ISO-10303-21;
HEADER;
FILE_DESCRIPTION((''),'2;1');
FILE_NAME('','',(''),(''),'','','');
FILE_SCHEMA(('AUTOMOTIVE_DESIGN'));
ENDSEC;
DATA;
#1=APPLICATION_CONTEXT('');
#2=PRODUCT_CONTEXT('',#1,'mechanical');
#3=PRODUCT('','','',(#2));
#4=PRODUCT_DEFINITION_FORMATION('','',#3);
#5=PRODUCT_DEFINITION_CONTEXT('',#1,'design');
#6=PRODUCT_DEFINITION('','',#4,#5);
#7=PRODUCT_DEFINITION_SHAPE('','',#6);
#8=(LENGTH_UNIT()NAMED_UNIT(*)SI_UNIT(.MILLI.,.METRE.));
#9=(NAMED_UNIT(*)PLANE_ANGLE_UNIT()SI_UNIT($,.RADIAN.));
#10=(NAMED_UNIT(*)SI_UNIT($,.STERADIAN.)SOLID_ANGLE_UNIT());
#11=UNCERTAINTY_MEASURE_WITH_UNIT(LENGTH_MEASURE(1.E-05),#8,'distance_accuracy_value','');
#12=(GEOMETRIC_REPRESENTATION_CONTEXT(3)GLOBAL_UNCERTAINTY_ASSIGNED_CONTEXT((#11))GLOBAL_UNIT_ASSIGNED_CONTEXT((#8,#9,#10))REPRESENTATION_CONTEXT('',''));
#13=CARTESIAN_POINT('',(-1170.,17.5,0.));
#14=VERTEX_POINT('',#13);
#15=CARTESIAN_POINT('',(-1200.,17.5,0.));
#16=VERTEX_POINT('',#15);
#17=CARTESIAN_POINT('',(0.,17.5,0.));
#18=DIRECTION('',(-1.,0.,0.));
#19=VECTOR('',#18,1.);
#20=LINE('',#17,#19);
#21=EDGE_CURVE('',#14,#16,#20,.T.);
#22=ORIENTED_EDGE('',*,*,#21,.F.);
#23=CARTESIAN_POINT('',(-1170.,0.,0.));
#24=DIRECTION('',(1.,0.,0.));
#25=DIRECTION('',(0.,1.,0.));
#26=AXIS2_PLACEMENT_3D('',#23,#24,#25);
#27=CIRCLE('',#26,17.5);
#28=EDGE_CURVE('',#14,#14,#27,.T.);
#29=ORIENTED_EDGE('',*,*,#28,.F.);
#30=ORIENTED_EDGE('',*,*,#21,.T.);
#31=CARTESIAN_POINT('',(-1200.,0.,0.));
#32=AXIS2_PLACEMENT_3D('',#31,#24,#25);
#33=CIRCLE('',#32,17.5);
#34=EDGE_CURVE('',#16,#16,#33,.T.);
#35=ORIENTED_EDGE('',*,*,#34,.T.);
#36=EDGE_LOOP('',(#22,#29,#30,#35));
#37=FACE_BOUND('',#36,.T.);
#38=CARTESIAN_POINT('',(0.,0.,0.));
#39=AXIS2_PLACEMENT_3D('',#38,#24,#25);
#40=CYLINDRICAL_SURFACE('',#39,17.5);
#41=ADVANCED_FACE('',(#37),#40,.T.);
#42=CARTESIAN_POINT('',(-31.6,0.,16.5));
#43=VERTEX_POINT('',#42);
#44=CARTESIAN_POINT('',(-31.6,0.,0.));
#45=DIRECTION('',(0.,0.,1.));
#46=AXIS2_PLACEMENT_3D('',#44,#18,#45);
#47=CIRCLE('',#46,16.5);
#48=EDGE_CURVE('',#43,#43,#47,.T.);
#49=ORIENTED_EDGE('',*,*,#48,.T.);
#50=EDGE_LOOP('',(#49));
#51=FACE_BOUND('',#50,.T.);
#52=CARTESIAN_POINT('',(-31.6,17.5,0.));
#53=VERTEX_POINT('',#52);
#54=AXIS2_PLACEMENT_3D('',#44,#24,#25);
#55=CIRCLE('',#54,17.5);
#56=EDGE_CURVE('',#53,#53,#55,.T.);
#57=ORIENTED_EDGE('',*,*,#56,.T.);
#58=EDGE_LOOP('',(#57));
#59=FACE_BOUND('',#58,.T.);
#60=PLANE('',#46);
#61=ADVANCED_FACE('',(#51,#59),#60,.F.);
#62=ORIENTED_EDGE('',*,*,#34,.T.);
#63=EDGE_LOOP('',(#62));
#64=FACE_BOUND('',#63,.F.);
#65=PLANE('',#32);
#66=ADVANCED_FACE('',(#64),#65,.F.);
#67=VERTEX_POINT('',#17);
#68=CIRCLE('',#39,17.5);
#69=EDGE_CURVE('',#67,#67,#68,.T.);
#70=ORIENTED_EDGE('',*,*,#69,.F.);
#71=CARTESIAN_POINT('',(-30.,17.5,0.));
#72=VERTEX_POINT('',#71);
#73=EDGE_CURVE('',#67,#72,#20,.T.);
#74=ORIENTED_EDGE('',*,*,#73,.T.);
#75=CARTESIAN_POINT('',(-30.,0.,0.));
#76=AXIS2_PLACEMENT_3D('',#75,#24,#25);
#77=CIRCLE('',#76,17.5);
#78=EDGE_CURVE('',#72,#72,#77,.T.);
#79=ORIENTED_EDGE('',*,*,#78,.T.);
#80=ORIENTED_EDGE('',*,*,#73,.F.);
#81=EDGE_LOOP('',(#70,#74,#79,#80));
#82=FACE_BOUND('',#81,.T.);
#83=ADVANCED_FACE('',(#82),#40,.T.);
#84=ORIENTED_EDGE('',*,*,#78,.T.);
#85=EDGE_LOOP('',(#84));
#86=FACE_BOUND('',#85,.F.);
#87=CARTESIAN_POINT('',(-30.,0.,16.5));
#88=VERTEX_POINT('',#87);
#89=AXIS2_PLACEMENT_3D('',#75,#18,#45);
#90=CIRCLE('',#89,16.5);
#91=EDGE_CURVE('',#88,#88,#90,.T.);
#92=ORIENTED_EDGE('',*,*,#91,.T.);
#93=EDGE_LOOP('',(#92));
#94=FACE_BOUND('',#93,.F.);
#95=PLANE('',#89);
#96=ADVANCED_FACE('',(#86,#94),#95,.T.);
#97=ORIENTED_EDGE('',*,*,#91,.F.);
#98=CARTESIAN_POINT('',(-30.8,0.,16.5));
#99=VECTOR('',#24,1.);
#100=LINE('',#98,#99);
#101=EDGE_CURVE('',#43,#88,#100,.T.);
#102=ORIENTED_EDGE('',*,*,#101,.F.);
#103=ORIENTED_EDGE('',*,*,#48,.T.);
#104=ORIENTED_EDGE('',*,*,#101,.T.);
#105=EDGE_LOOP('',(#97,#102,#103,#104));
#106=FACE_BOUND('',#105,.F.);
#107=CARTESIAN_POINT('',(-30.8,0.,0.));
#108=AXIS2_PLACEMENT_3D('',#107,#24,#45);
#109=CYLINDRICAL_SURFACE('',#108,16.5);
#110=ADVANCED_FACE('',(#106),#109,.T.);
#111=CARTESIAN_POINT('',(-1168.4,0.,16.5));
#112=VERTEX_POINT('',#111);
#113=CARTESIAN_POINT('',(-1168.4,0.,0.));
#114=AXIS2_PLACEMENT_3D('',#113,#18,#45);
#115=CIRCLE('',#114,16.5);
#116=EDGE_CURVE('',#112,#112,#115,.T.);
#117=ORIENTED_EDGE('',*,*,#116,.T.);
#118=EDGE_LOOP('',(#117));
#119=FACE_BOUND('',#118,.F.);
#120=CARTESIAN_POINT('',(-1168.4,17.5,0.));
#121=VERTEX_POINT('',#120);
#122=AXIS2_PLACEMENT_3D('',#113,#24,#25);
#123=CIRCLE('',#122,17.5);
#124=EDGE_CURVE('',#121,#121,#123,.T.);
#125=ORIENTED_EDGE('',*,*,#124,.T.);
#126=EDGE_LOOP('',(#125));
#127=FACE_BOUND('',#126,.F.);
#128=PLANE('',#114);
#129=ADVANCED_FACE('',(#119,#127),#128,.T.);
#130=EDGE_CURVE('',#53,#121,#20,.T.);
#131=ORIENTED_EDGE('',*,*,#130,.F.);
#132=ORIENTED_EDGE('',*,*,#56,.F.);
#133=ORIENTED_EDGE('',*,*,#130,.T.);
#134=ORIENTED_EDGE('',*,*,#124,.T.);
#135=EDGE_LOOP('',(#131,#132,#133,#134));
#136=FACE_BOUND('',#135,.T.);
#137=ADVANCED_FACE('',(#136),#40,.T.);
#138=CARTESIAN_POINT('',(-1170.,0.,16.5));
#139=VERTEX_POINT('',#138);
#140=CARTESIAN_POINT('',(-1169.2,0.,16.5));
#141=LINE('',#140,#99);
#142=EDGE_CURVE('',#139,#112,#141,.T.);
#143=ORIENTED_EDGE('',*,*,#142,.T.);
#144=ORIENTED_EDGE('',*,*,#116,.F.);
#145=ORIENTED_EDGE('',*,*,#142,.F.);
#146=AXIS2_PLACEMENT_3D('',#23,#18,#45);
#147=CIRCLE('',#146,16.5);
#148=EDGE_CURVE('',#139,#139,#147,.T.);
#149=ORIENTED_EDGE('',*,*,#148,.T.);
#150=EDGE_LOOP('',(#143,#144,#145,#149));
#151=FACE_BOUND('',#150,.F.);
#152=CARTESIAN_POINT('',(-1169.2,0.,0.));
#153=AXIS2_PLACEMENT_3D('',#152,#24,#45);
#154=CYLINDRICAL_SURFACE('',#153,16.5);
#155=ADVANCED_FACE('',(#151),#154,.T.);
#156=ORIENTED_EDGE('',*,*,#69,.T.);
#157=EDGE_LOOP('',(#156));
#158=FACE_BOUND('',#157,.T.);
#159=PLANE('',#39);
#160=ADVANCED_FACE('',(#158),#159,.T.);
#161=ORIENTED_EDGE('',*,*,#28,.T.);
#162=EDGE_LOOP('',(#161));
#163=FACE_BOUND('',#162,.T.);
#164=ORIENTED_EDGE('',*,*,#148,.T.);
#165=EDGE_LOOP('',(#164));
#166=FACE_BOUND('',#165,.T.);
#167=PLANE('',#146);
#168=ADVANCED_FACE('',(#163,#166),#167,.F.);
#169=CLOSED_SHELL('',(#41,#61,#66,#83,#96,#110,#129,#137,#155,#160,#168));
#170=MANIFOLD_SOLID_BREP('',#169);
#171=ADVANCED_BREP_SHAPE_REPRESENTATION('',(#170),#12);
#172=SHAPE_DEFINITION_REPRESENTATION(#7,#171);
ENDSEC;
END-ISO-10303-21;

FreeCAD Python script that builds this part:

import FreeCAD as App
import Part
import Sketcher
from FreeCAD import Vector
Q = App.Units.Quantity


def add_polygon(sketch, points):
    """Adds a closed chain of lines whose ends are joined by coincident constraints."""
    first, n = sketch.GeometryCount, len(points)
    for a, b in zip(points, points[1:] + points[:1]):
        sketch.addGeometry(Part.LineSegment(App.Vector(*a, 0), App.Vector(*b, 0)), False)
    for i in range(n):
        sketch.addConstraint(Sketcher.Constraint("Coincident", first + i, 2, first + (i + 1) % n, 1))

doc = App.newDocument("Part")
params = doc.addObject("Spreadsheet::Sheet", "Params")
for row, (alias, value) in enumerate([
    ("sketch1_diameter", "35 mm"),
    ("pad1_length", "1200 mm"),
    ("sketch2_height", "1 mm"),
    ("sketch2_width", "1.6 mm"),
    ("groove_angle", "360 deg"),
], start=1):
    params.set(f"A{row}", alias)
    params.set(f"B{row}", "=" + value)
    params.setAlias(f"B{row}", alias)

body = doc.addObject("PartDesign::Body", "Body")

# Sketch on YZ plane
sketch1 = body.newObject("Sketcher::SketchObject", "Sketch")
sketch1.AttachmentSupport = (doc.getObject("YZ_Plane"), [""])
sketch1.MapMode = "FlatFace"
sketch1.addGeometry(Part.Circle(Vector(0, 0, 0), Vector(0, 0, 1), 18), False)
sketch1.addConstraint([
    Sketcher.Constraint("Coincident", 0, 3, -1, 1),
    Sketcher.Constraint("Diameter", 0, Q("35 mm")),
])
sketch1.setExpression("Constraints[1]", "Params.sketch1_diameter")
pad1 = body.newObject("PartDesign::Pad", "Pad")
pad1.Profile = sketch1
pad1.setExpression("Length", "Params.pad1_length")
pad1.Reversed = True

# Sketch on XZ plane
sketch2 = body.newObject("Sketcher::SketchObject", "Sketch001")
sketch2.AttachmentSupport = (doc.getObject("XZ_Plane"), [""])
sketch2.MapMode = "FlatFace"
add_polygon(sketch2, [(-31.6, 17.5), (-31.6, 16.5), (-30, 16.5), (-30, 17.5)])  # lines 0-3
add_polygon(sketch2, [(-1170, 17.5), (-1170, 16.5), (-1168.4, 16.5), (-1168.4, 17.5)])  # lines 4-7
sketch2.addConstraint([
    Sketcher.Constraint("Vertical", 0),
    Sketcher.Constraint("Horizontal", 1),
    Sketcher.Constraint("Vertical", 2),
    Sketcher.Constraint("Horizontal", 3),
    Sketcher.Constraint("Vertical", 4),
    Sketcher.Constraint("Horizontal", 5),
    Sketcher.Constraint("Vertical", 6),
    Sketcher.Constraint("Horizontal", 7),
    Sketcher.Constraint("Horizontal", 1, 2, 4, 2),
    Sketcher.Constraint("Horizontal", 3, 2, 6, 2),
    Sketcher.Constraint("Equal", 3, 5),
    Sketcher.Constraint("DistanceY", 0, 2, 0, 1, Q("1 mm")),
    Sketcher.Constraint("DistanceX", 1, 1, 1, 2, Q("1.6 mm")),
    Sketcher.Constraint("DistanceX", 1, 2, -1, 1, Q("30 mm")),
    Sketcher.Constraint("DistanceX", 4, 2, -1, 1, Q("1170 mm")),
    Sketcher.Constraint("DistanceY", -1, 1, 0, 2, Q("16.5 mm")),
])
sketch2.setExpression("Constraints[19]", "Params.sketch2_height")
sketch2.setExpression("Constraints[20]", "Params.sketch2_width")
groove = body.newObject("PartDesign::Groove", "Groove")
groove.Profile = sketch2
groove.ReferenceAxis = (sketch2, ["H_Axis"])
groove.setExpression("Angle", "Params.groove_angle")

doc.recompute()
